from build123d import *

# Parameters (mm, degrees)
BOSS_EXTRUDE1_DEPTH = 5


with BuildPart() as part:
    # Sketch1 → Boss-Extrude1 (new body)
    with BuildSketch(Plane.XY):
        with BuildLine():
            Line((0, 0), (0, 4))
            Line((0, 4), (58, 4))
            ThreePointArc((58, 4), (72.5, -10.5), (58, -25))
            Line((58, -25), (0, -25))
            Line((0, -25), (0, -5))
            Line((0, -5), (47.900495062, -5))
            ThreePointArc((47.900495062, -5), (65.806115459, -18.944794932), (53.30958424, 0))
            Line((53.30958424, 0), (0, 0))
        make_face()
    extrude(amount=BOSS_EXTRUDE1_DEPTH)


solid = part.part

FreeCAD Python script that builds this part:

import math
import FreeCAD as App
import Part
import Sketcher
from FreeCAD import Vector
Q = App.Units.Quantity

doc = App.newDocument("Part")
body = doc.addObject("PartDesign::Body", "Body")

# Sketch on XY plane
sketch1 = body.newObject("Sketcher::SketchObject", "Sketch")
sketch1.AttachmentSupport = (doc.getObject("XY_Plane"), [""])
sketch1.MapMode = "FlatFace"
sketch1.addGeometry([
    Part.LineSegment(Vector(0, 4, 0), Vector(0, 0, 0)),  # 0
    Part.LineSegment(Vector(0, 0, 0), Vector(53.3, 0, 0)),  # 1
    Part.ArcOfCircle(Part.Circle(Vector(58, -10.5, 0), Vector(0, 0, 1), 11.5), math.radians(151), math.radians(474)),  # 2
    Part.LineSegment(Vector(47.9, -5, 0), Vector(0, -5, 0)),  # 3
    Part.LineSegment(Vector(0, -5, 0), Vector(0, -25, 0)),  # 4
    Part.LineSegment(Vector(0, -25, 0), Vector(58, -25, 0)),  # 5
    Part.ArcOfCircle(Part.Circle(Vector(58, -10.5, 0), Vector(0, 0, 1), 14.5), math.radians(-90), math.radians(90)),  # 6
    Part.LineSegment(Vector(58, 4, 0), Vector(0, 4, 0)),  # 7
], False)
sketch1.addConstraint([
    Sketcher.Constraint("Coincident", 0, 2, 1, 1),
    Sketcher.Constraint("Coincident", 1, 2, 2, 2),
    Sketcher.Constraint("Coincident", 2, 1, 3, 1),
    Sketcher.Constraint("Coincident", 3, 2, 4, 1),
    Sketcher.Constraint("Coincident", 4, 2, 5, 1),
    Sketcher.Constraint("Tangent", 5, 2, 6, 1),
    Sketcher.Constraint("Tangent", 6, 2, 7, 1),
    Sketcher.Constraint("Coincident", 7, 2, 0, 1),
    Sketcher.Constraint("Vertical", 0),
    Sketcher.Constraint("Horizontal", 1),
    Sketcher.Constraint("Horizontal", 3),
    Sketcher.Constraint("Vertical", 4),
    Sketcher.Constraint("Horizontal", 5),
    Sketcher.Constraint("Horizontal", 7),
    Sketcher.Constraint("Coincident", 0, 2, -1, 1),
    Sketcher.Constraint("Coincident", 6, 3, 2, 3),
    Sketcher.Constraint("PointOnObject", 3, 2, -2),
    Sketcher.Constraint("Radius", 2, Q("11.5 mm")),
    Sketcher.Constraint("Radius", 6, Q("14.5 mm")),
    Sketcher.Constraint("DistanceX", 5, 1, 5, 2, Q("58 mm")),
    Sketcher.Constraint("DistanceY", 0, 2, 0, 1, Q("4 mm")),
    Sketcher.Constraint("DistanceY", 4, 2, 4, 1, Q("20 mm")),
])
pad1 = body.newObject("PartDesign::Pad", "Pad")
pad1.Profile = sketch1
pad1.Length = 5

doc.recompute()
